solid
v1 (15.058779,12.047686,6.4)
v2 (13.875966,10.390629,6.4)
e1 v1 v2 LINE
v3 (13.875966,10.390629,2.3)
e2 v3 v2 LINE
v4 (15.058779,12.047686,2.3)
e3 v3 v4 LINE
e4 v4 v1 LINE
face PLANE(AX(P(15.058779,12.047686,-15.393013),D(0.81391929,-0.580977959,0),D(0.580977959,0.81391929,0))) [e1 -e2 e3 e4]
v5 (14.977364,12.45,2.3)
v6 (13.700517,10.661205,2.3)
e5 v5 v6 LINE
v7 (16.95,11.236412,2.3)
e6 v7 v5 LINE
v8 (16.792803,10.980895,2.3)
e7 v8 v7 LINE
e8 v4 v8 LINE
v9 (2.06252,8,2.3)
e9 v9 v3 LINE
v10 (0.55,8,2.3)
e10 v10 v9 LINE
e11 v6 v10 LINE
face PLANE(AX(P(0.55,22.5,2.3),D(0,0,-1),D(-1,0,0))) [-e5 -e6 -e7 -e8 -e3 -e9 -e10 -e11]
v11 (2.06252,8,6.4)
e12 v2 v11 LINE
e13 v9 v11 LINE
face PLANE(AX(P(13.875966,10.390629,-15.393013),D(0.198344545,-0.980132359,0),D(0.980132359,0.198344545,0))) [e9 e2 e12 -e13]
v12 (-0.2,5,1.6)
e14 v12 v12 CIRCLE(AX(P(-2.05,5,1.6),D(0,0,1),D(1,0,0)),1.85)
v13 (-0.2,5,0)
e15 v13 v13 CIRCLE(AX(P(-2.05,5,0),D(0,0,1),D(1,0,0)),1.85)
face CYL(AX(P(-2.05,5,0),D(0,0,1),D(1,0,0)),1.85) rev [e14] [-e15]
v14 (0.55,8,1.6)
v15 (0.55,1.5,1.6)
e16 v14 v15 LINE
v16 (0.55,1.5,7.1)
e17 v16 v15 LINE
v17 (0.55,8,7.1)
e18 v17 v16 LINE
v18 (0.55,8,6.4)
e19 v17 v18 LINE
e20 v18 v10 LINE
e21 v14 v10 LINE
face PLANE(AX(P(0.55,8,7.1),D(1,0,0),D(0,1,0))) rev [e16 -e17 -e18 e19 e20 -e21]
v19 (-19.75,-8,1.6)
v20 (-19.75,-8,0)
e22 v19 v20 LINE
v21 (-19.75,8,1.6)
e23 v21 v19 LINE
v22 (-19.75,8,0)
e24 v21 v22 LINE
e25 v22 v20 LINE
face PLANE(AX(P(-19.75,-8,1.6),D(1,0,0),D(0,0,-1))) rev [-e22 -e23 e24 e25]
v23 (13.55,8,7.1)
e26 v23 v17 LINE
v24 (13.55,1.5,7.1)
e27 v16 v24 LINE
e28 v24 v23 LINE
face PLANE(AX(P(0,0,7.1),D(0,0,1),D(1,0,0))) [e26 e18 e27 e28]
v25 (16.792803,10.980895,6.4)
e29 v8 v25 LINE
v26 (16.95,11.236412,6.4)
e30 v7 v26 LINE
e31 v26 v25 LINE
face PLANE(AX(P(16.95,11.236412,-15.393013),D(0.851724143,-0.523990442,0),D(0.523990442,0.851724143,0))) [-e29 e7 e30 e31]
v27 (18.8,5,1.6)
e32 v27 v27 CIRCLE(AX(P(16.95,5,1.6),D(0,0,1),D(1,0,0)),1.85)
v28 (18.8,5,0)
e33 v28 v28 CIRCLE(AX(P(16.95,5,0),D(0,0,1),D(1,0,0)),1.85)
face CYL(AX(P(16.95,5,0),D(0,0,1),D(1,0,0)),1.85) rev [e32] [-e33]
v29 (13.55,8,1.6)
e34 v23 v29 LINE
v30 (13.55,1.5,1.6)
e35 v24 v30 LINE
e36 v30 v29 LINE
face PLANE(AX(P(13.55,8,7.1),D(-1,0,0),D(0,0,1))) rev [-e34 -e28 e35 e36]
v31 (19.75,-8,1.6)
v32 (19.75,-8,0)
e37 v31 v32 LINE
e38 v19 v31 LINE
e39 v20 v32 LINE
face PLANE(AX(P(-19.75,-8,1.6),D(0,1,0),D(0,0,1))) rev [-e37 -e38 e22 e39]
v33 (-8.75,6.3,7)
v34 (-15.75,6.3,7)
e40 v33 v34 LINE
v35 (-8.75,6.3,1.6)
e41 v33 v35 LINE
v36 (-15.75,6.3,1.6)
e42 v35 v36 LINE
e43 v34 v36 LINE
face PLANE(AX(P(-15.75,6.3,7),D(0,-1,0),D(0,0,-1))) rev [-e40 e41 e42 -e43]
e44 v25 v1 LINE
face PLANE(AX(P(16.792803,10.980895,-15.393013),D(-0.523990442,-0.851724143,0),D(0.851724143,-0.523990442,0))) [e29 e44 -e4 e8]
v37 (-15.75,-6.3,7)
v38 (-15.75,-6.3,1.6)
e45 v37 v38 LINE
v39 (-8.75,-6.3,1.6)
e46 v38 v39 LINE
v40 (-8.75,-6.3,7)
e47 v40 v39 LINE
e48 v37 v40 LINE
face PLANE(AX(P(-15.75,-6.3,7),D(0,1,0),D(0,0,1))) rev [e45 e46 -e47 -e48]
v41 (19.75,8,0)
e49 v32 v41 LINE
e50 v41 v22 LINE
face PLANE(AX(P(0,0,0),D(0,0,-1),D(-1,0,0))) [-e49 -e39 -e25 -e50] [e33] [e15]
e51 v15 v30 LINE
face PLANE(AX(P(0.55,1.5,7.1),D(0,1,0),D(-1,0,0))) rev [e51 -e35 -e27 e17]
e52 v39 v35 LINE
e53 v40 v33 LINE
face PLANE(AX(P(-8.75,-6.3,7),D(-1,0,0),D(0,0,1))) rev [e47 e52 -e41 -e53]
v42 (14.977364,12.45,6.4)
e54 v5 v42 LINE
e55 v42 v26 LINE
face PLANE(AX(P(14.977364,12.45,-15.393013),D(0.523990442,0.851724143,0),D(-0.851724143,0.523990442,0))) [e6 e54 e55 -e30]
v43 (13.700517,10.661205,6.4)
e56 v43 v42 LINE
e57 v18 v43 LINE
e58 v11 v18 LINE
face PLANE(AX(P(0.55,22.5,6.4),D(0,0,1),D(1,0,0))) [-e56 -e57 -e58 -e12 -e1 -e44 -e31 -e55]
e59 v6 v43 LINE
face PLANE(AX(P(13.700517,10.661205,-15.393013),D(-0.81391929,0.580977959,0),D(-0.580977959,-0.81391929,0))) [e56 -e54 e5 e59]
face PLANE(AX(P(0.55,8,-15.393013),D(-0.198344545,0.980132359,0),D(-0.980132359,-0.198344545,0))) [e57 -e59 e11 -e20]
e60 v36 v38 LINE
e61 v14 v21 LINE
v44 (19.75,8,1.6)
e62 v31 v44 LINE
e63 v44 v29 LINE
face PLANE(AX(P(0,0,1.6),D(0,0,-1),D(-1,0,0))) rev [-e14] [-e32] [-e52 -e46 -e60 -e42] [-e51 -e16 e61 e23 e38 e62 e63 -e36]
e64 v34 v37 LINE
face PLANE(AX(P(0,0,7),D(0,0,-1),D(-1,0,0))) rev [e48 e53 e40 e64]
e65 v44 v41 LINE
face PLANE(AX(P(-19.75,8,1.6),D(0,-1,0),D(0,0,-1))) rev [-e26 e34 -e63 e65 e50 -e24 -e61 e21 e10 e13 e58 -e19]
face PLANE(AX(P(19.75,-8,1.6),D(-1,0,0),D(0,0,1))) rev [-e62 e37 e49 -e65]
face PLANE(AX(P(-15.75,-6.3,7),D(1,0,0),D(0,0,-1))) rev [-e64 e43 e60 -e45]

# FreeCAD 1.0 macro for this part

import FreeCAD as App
import Part
import Sketcher
from FreeCAD import Vector

doc = App.newDocument("Part")
params = doc.addObject("Spreadsheet::Sheet", "Params")
for row, (alias, value) in enumerate([
    ("sketch1_height", "16 mm"),
    ("sketch1_width", "39.5 mm"),
    ("pad1_length", "1.6 mm"),
    ("sketch2_diameter", "3.7 mm"),
    ("pocket1_length", "1.6 mm"),
    ("sketch3_width", "13 mm"),
    ("sketch3_height", "6.5 mm"),
    ("pad2_length", "5.5 mm"),
    ("sketch4_length", "0.3 mm"),
    ("pad3_length", "5.5 mm"),
    ("sketch5_height", "0.7 mm"),
    ("pocket2_length", "14.5 mm"),
    ("sketch6_width", "7 mm"),
    ("sketch6_height", "12.6 mm"),
    ("pad4_length", "5.4 mm"),
], start=1):
    params.set(f"A{row}", alias)
    params.set(f"B{row}", "=" + value)
    params.setAlias(f"B{row}", alias)

body = doc.addObject("PartDesign::Body", "Body")

sketch1 = body.newObject("Sketcher::SketchObject", "Sketch")
sketch1.AttachmentSupport = (doc.getObject("XY_Plane"), [""])
sketch1.MapMode = "FlatFace"
sketch1.addGeometry([
    Part.LineSegment(Vector(-20, 8, 0), Vector(-20, -8, 0)),
    Part.LineSegment(Vector(-20, -8, 0), Vector(20, -8, 0)),
    Part.LineSegment(Vector(20, -8, 0), Vector(20, 8, 0)),
    Part.LineSegment(Vector(20, 8, 0), Vector(-20, 8, 0)),
], False)
sketch1.addConstraint([
    Sketcher.Constraint("Coincident", 0, 2, 1, 1),
    Sketcher.Constraint("Coincident", 1, 2, 2, 1),
    Sketcher.Constraint("Coincident", 2, 2, 3, 1),
    Sketcher.Constraint("Coincident", 3, 2, 0, 1),
    Sketcher.Constraint("Vertical", 0),
    Sketcher.Constraint("Horizontal", 1),
    Sketcher.Constraint("Vertical", 2),
    Sketcher.Constraint("Horizontal", 3),
    Sketcher.Constraint("Symmetric", 0, 2, 2, 2, -1, 1),
    Sketcher.Constraint("DistanceY", 0, 2, 0, 1, 16.0),
    Sketcher.Constraint("DistanceX", 1, 1, 1, 2, 39.5),
])
sketch1.setExpression("Constraints[9]", "Params.sketch1_height")
sketch1.setExpression("Constraints[10]", "Params.sketch1_width")
pad1 = body.newObject("PartDesign::Pad", "Pad")
pad1.Profile = sketch1
pad1.setExpression("Length", "Params.pad1_length")

sketch2 = body.newObject("Sketcher::SketchObject", "Sketch001")
sketch2.AttachmentSupport = (doc.getObject("XY_Plane"), [""])
sketch2.MapMode = "FlatFace"
sketch2.AttachmentOffset = App.Placement(Vector(0, 0, 1.6), App.Rotation())
sketch2.addGeometry([
    Part.Circle(Vector(16.9, 5, 0), Vector(0, 0, 1), 1.9),
    Part.Circle(Vector(-2, 5, 0), Vector(0, 0, 1), 1.9),
], False)
sketch2.addConstraint([
    Sketcher.Constraint("Equal", 0, 1),
    Sketcher.Constraint("Horizontal", 0, 3, 1, 3),
    Sketcher.Constraint("Diameter", 0, 3.7),
    Sketcher.Constraint("DistanceY", -1, 1, 0, 3, 5.0),
    Sketcher.Constraint("DistanceX", 1, 3, 0, 3, 19.0),
    Sketcher.Constraint("DistanceX", -1, 1, 0, 3, 16.95),
])
sketch2.setExpression("Constraints[2]", "Params.sketch2_diameter")
pocket1 = body.newObject("PartDesign::Pocket", "Pocket")
pocket1.Profile = sketch2
pocket1.setExpression("Length", "Params.pocket1_length")

sketch3 = body.newObject("Sketcher::SketchObject", "Sketch002")
sketch3.AttachmentSupport = (doc.getObject("XY_Plane"), [""])
sketch3.MapMode = "FlatFace"
sketch3.AttachmentOffset = App.Placement(Vector(0, 0, 1.6), App.Rotation())
sketch3.addGeometry([
    Part.LineSegment(Vector(1, 8, 0), Vector(1, 2, 0)),
    Part.LineSegment(Vector(1, 2, 0), Vector(14, 2, 0)),
    Part.LineSegment(Vector(14, 2, 0), Vector(14, 8, 0)),
    Part.LineSegment(Vector(14, 8, 0), Vector(1, 8, 0)),
], False)
sketch3.addConstraint([
    Sketcher.Constraint("Coincident", 0, 2, 1, 1),
    Sketcher.Constraint("Coincident", 1, 2, 2, 1),
    Sketcher.Constraint("Coincident", 2, 2, 3, 1),
    Sketcher.Constraint("Coincident", 3, 2, 0, 1),
    Sketcher.Constraint("Vertical", 0),
    Sketcher.Constraint("Horizontal", 1),
    Sketcher.Constraint("Vertical", 2),
    Sketcher.Constraint("Horizontal", 3),
    Sketcher.Constraint("DistanceX", 1, 1, 1, 2, 13.0),
    Sketcher.Constraint("DistanceY", 0, 2, 0, 1, 6.5),
    Sketcher.Constraint("DistanceY", -1, 1, 2, 2, 8.0),
    Sketcher.Constraint("DistanceX", -1, 1, 0, 2, 0.55),
])
sketch3.setExpression("Constraints[8]", "Params.sketch3_width")
sketch3.setExpression("Constraints[9]", "Params.sketch3_height")
pad2 = body.newObject("PartDesign::Pad", "Pad001")
pad2.Profile = sketch3
pad2.setExpression("Length", "Params.pad2_length")

sketch4 = body.newObject("Sketcher::SketchObject", "Sketch003")
sketch4.AttachmentSupport = (doc.getObject("XY_Plane"), [""])
sketch4.MapMode = "FlatFace"
sketch4.AttachmentOffset = App.Placement(Vector(0, 0, 7.1), App.Rotation())
sketch4.addGeometry([
    Part.LineSegment(Vector(13.7, 10.66, 0), Vector(0.55, 8, 0)),
    Part.LineSegment(Vector(0.55, 8, 0), Vector(2.06, 8, 0)),
    Part.LineSegment(Vector(2.06, 8, 0), Vector(13.88, 10.39, 0)),
    Part.LineSegment(Vector(13.88, 10.39, 0), Vector(15.06, 12.05, 0)),
    Part.LineSegment(Vector(15.06, 12.05, 0), Vector(16.79, 10.98, 0)),
    Part.LineSegment(Vector(16.79, 10.98, 0), Vector(16.95, 11.24, 0)),
    Part.LineSegment(Vector(16.95, 11.24, 0), Vector(14.98, 12.45, 0)),
    Part.LineSegment(Vector(14.98, 12.45, 0), Vector(13.7, 10.66, 0)),
], False)
sketch4.addConstraint([
    Sketcher.Constraint("Coincident", 0, 2, 1, 1),
    Sketcher.Constraint("Coincident", 1, 2, 2, 1),
    Sketcher.Constraint("Coincident", 2, 2, 3, 1),
    Sketcher.Constraint("Coincident", 3, 2, 4, 1),
    Sketcher.Constraint("Coincident", 4, 2, 5, 1),
    Sketcher.Constraint("Coincident", 5, 2, 6, 1),
    Sketcher.Constraint("Coincident", 6, 2, 7, 1),
    Sketcher.Constraint("Coincident", 7, 2, 0, 1),
    Sketcher.Constraint("Horizontal", 1),
    Sketcher.Constraint("Parallel", 0, 2),
    Sketcher.Constraint("Perpendicular", 4, 5),
    Sketcher.Constraint("Perpendicular", 5, 6),
    Sketcher.Constraint("Parallel", 3, 7),
    Sketcher.Constraint("Equal", 3, 4),
    Sketcher.Constraint("DistanceY", -1, 1, 0, 2, 8.0),
    Sketcher.Constraint("Distance", 5, 0.3),
    Sketcher.Constraint("DistanceX", 0, 2, 5, 2, 16.4),
    Sketcher.Constraint("DistanceX", -1, 1, 0, 2, 0.55),
    Sketcher.Constraint("DistanceY", -1, 1, 6, 2, 12.45),
    Sketcher.Constraint("Distance", 3, 2.035899),
    Sketcher.Constraint("DistanceX", 1, 1, 1, 2, 1.51252),
    Sketcher.Constraint("DistanceX", 2, 2, 6, 2, 1.101398),
    Sketcher.Constraint("Distance", 2, 12.052909),
    Sketcher.Constraint("Distance", 6, 2.31605),
])
sketch4.setExpression("Constraints[15]", "Params.sketch4_length")
pad3 = body.newObject("PartDesign::Pad", "Pad002")
pad3.Profile = sketch4
pad3.setExpression("Length", "Params.pad3_length")
pad3.Reversed = True

sketch5 = body.newObject("Sketcher::SketchObject", "Sketch004")
sketch5.AttachmentSupport = (doc.getObject("XZ_Plane"), [""])
sketch5.MapMode = "FlatFace"
sketch5.AttachmentOffset = App.Placement(Vector(0, 0, -8), App.Rotation())
sketch5.addGeometry([
    Part.LineSegment(Vector(0.6, 6.4, 0), Vector(0.6, 7.1, 0)),
    Part.LineSegment(Vector(0.6, 7.1, 0), Vector(19.8, 7.1, 0)),
    Part.LineSegment(Vector(19.8, 7.1, 0), Vector(19.8, 6.4, 0)),
    Part.LineSegment(Vector(19.8, 6.4, 0), Vector(0.6, 6.4, 0)),
    Part.LineSegment(Vector(0.6, 1.6, 0), Vector(0.6, 2.3, 0)),
    Part.LineSegment(Vector(0.6, 2.3, 0), Vector(19.8, 2.3, 0)),
    Part.LineSegment(Vector(19.8, 2.3, 0), Vector(19.8, 1.6, 0)),
    Part.LineSegment(Vector(19.8, 1.6, 0), Vector(0.6, 1.6, 0)),
], False)
sketch5.addConstraint([
    Sketcher.Constraint("Coincident", 0, 2, 1, 1),
    Sketcher.Constraint("Coincident", 1, 2, 2, 1),
    Sketcher.Constraint("Coincident", 2, 2, 3, 1),
    Sketcher.Constraint("Coincident", 3, 2, 0, 1),
    Sketcher.Constraint("Coincident", 4, 2, 5, 1),
    Sketcher.Constraint("Coincident", 5, 2, 6, 1),
    Sketcher.Constraint("Coincident", 6, 2, 7, 1),
    Sketcher.Constraint("Coincident", 7, 2, 4, 1),
    Sketcher.Constraint("Vertical", 0),
    Sketcher.Constraint("Horizontal", 1),
    Sketcher.Constraint("Vertical", 2),
    Sketcher.Constraint("Horizontal", 3),
    Sketcher.Constraint("Vertical", 4),
    Sketcher.Constraint("Horizontal", 5),
    Sketcher.Constraint("Vertical", 6),
    Sketcher.Constraint("Horizontal", 7),
    Sketcher.Constraint("Vertical", 3, 2, 4, 2),
    Sketcher.Constraint("Vertical", 2, 2, 5, 2),
    Sketcher.Constraint("Equal", 2, 4),
    Sketcher.Constraint("DistanceY", 0, 1, 0, 2, 0.7),
    Sketcher.Constraint("DistanceY", -1, 1, 0, 2, 7.1),
    Sketcher.Constraint("DistanceY", -1, 1, 4, 2, 2.3),
    Sketcher.Constraint("DistanceX", -1, 1, 0, 2, 0.55),
    Sketcher.Constraint("DistanceX", 1, 1, 1, 2, 19.265102),
])
sketch5.setExpression("Constraints[19]", "Params.sketch5_height")
pocket2 = body.newObject("PartDesign::Pocket", "Pocket001")
pocket2.Profile = sketch5
pocket2.setExpression("Length", "Params.pocket2_length")

sketch6 = body.newObject("Sketcher::SketchObject", "Sketch005")
sketch6.AttachmentSupport = (doc.getObject("XY_Plane"), [""])
sketch6.MapMode = "FlatFace"
sketch6.AttachmentOffset = App.Placement(Vector(0, 0, 1.6), App.Rotation())
sketch6.addGeometry([
    Part.LineSegment(Vector(-16, 6, 0), Vector(-16, -6, 0)),
    Part.LineSegment(Vector(-16, -6, 0), Vector(-9, -6, 0)),
    Part.LineSegment(Vector(-9, -6, 0), Vector(-9, 6, 0)),
    Part.LineSegment(Vector(-9, 6, 0), Vector(-16, 6, 0)),
], False)
sketch6.addConstraint([
    Sketcher.Constraint("Coincident", 0, 2, 1, 1),
    Sketcher.Constraint("Coincident", 1, 2, 2, 1),
    Sketcher.Constraint("Coincident", 2, 2, 3, 1),
    Sketcher.Constraint("Coincident", 3, 2, 0, 1),
    Sketcher.Constraint("Vertical", 0),
    Sketcher.Constraint("Horizontal", 1),
    Sketcher.Constraint("Vertical", 2),
    Sketcher.Constraint("Horizontal", 3),
    Sketcher.Constraint("DistanceX", 1, 1, 1, 2, 7.0),
    Sketcher.Constraint("DistanceY", 0, 2, 0, 1, 12.6),
    Sketcher.Constraint("DistanceY", 0, 2, -1, 1, 6.3),
    Sketcher.Constraint("DistanceX", 0, 2, -1, 1, 15.75),
])
sketch6.setExpression("Constraints[8]", "Params.sketch6_width")
sketch6.setExpression("Constraints[9]", "Params.sketch6_height")
pad4 = body.newObject("PartDesign::Pad", "Pad003")
pad4.Profile = sketch6
pad4.setExpression("Length", "Params.pad4_length")

doc.recompute()
